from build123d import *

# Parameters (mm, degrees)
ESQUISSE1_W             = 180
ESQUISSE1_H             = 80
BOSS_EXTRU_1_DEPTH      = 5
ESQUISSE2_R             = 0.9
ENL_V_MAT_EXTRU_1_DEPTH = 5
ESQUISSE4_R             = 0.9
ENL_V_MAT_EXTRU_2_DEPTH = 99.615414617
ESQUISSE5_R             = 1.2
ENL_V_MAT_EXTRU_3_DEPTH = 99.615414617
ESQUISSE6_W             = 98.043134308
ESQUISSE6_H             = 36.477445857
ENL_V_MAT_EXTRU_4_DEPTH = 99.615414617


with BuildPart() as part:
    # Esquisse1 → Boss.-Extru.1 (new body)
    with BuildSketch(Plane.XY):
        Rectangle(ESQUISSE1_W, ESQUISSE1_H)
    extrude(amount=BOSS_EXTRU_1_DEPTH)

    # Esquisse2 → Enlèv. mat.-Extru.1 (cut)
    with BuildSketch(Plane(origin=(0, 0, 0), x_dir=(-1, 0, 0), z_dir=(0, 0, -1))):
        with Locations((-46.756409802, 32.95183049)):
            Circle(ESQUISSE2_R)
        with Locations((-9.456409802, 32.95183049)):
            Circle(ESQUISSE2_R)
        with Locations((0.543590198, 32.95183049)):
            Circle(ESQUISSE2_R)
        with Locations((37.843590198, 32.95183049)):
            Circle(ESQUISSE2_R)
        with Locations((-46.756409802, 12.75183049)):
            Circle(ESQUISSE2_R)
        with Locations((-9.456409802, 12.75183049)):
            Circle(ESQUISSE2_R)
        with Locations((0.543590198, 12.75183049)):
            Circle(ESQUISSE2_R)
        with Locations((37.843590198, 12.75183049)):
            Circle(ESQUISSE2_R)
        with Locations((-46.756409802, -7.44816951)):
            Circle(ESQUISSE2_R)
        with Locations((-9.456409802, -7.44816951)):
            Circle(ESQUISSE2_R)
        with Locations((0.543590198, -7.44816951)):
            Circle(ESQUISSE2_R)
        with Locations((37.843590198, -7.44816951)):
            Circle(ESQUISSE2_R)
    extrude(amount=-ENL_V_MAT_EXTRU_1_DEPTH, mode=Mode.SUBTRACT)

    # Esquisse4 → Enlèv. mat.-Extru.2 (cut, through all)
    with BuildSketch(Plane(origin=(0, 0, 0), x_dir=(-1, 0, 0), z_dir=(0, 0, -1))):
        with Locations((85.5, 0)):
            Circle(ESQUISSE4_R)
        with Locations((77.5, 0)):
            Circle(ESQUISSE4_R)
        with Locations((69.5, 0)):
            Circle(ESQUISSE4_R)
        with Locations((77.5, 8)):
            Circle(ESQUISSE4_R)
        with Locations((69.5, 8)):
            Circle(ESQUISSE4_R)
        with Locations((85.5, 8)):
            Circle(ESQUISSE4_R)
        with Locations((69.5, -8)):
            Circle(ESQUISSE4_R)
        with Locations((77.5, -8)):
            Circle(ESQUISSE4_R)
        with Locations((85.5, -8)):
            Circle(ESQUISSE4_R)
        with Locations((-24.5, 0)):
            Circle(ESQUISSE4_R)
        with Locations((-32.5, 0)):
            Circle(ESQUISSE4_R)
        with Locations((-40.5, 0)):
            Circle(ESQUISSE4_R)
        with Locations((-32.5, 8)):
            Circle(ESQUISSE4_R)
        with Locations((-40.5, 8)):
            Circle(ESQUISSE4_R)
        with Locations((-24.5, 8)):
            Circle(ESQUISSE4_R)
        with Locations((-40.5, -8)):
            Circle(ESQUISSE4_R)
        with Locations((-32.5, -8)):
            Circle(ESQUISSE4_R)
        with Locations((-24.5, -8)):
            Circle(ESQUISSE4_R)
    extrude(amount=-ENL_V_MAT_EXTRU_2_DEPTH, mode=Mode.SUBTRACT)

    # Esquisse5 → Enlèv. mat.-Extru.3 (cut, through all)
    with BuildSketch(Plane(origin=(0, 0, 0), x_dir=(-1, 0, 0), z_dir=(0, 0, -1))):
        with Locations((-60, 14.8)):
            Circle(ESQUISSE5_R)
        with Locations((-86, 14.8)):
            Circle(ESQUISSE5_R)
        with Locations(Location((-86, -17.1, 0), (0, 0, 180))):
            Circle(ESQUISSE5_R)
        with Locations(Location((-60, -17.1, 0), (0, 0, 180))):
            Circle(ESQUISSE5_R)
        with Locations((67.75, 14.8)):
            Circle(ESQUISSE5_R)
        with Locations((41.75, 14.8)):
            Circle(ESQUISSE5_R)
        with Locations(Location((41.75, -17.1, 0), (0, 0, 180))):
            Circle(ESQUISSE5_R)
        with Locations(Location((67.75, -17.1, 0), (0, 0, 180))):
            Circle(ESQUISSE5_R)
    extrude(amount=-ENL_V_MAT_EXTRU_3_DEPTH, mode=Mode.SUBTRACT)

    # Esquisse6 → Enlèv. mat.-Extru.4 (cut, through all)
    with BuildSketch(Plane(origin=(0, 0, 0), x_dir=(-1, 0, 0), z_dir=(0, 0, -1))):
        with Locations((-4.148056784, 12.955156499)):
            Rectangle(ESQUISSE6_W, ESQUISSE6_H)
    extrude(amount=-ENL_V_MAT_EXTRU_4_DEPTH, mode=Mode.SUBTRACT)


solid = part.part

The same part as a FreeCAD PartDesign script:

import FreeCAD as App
import Part
import Sketcher

V = App.Vector


def add_polygon(sketch, points):
    """Adds a closed chain of lines whose ends are joined by coincident constraints."""
    first, n = sketch.GeometryCount, len(points)
    for a, b in zip(points, points[1:] + points[:1]):
        sketch.addGeometry(Part.LineSegment(App.Vector(*a, 0), App.Vector(*b, 0)), False)
    for i in range(n):
        sketch.addConstraint(Sketcher.Constraint("Coincident", first + i, 2, first + (i + 1) % n, 1))

doc = App.newDocument("Part")
params = doc.addObject("Spreadsheet::Sheet", "Params")
for row, (alias, value) in enumerate([
    ("sketch1_width", "180 mm"),
    ("sketch1_height", "80 mm"),
    ("pad1_length", "5 mm"),
    ("sketch2_diameter", "1.8 mm"),
    ("pocket1_length", "5 mm"),
    ("sketch3_diameter", "1.8 mm"),
    ("sketch4_diameter", "2.4 mm"),
], start=1):
    params.set(f"A{row}", alias)
    params.set(f"B{row}", "=" + value)
    params.setAlias(f"B{row}", alias)

body = doc.addObject("PartDesign::Body", "Body")

# Sketch on XY plane
sketch1 = body.newObject("Sketcher::SketchObject", "Sketch")
sketch1.AttachmentSupport = (doc.getObject("XY_Plane"), [""])
sketch1.MapMode = "FlatFace"
add_polygon(sketch1, [(-90, 40), (-90, -40), (90, -40), (90, 40)])  # lines 0-3
sketch1.addConstraint(Sketcher.Constraint("Vertical", 0))
sketch1.addConstraint(Sketcher.Constraint("Horizontal", 1))
sketch1.addConstraint(Sketcher.Constraint("Vertical", 2))
sketch1.addConstraint(Sketcher.Constraint("Horizontal", 3))
sketch1.addConstraint(Sketcher.Constraint("Symmetric", 0, 2, 2, 2, -1, 1))
sketch1.addConstraint(Sketcher.Constraint("DistanceX", 1, 1, 1, 2, 180.0))
sketch1.addConstraint(Sketcher.Constraint("DistanceY", 0, 2, 0, 1, 80.0))
sketch1.setExpression("Constraints[9]", "Params.sketch1_width")
sketch1.setExpression("Constraints[10]", "Params.sketch1_height")
pad1 = body.newObject("PartDesign::Pad", "Pad")
pad1.Profile = sketch1
pad1.setExpression("Length", "Params.pad1_length")

# Sketch on XY plane
sketch2 = body.newObject("Sketcher::SketchObject", "Sketch001")
sketch2.AttachmentSupport = (doc.getObject("XY_Plane"), [""])
sketch2.MapMode = "FlatFace"
sketch2.addGeometry(Part.Circle(V(46.75641, 32.95183, 0), V(0, 0, 1), 0.9), False)
sketch2.addGeometry(Part.Circle(V(9.45641, 32.95183, 0), V(0, 0, 1), 0.9), False)
sketch2.addGeometry(Part.Circle(V(-0.54359, 32.95183, 0), V(0, 0, 1), 0.9), False)
sketch2.addGeometry(Part.Circle(V(-37.84359, 32.95183, 0), V(0, 0, 1), 0.9), False)
sketch2.addGeometry(Part.Circle(V(46.75641, 12.75183, 0), V(0, 0, 1), 0.9), False)
sketch2.addGeometry(Part.Circle(V(9.45641, 12.75183, 0), V(0, 0, 1), 0.9), False)
sketch2.addGeometry(Part.Circle(V(-0.54359, 12.75183, 0), V(0, 0, 1), 0.9), False)
sketch2.addGeometry(Part.Circle(V(-37.84359, 12.75183, 0), V(0, 0, 1), 0.9), False)
sketch2.addGeometry(Part.Circle(V(46.75641, -7.44817, 0), V(0, 0, 1), 0.9), False)
sketch2.addGeometry(Part.Circle(V(9.45641, -7.44817, 0), V(0, 0, 1), 0.9), False)
sketch2.addGeometry(Part.Circle(V(-0.54359, -7.44817, 0), V(0, 0, 1), 0.9), False)
sketch2.addGeometry(Part.Circle(V(-37.84359, -7.44817, 0), V(0, 0, 1), 0.9), False)
sketch2.addConstraint(Sketcher.Constraint("Equal", 0, 1))
sketch2.addConstraint(Sketcher.Constraint("Equal", 1, 2))
sketch2.addConstraint(Sketcher.Constraint("Equal", 2, 3))
sketch2.addConstraint(Sketcher.Constraint("Equal", 3, 4))
sketch2.addConstraint(Sketcher.Constraint("Equal", 4, 5))
sketch2.addConstraint(Sketcher.Constraint("Equal", 5, 6))
sketch2.addConstraint(Sketcher.Constraint("Equal", 6, 7))
sketch2.addConstraint(Sketcher.Constraint("Equal", 7, 8))
sketch2.addConstraint(Sketcher.Constraint("Equal", 8, 9))
sketch2.addConstraint(Sketcher.Constraint("Equal", 9, 10))
sketch2.addConstraint(Sketcher.Constraint("Equal", 10, 11))
sketch2.addConstraint(Sketcher.Constraint("Horizontal", 0, 3, 1, 3))
sketch2.addConstraint(Sketcher.Constraint("Horizontal", 1, 3, 2, 3))
sketch2.addConstraint(Sketcher.Constraint("Horizontal", 2, 3, 3, 3))
sketch2.addConstraint(Sketcher.Constraint("Horizontal", 4, 3, 5, 3))
sketch2.addConstraint(Sketcher.Constraint("Horizontal", 5, 3, 6, 3))
sketch2.addConstraint(Sketcher.Constraint("Horizontal", 6, 3, 7, 3))
sketch2.addConstraint(Sketcher.Constraint("Horizontal", 8, 3, 9, 3))
sketch2.addConstraint(Sketcher.Constraint("Horizontal", 9, 3, 10, 3))
sketch2.addConstraint(Sketcher.Constraint("Horizontal", 10, 3, 11, 3))
sketch2.addConstraint(Sketcher.Constraint("Vertical", 0, 3, 4, 3))
sketch2.addConstraint(Sketcher.Constraint("Vertical", 1, 3, 5, 3))
sketch2.addConstraint(Sketcher.Constraint("Vertical", 2, 3, 6, 3))
sketch2.addConstraint(Sketcher.Constraint("Vertical", 3, 3, 7, 3))
sketch2.addConstraint(Sketcher.Constraint("Vertical", 4, 3, 8, 3))
sketch2.addConstraint(Sketcher.Constraint("Vertical", 5, 3, 9, 3))
sketch2.addConstraint(Sketcher.Constraint("Vertical", 6, 3, 10, 3))
sketch2.addConstraint(Sketcher.Constraint("Vertical", 7, 3, 11, 3))
sketch2.addConstraint(Sketcher.Constraint("Diameter", 0, 1.8))
sketch2.addConstraint(Sketcher.Constraint("DistanceX", 2, 3, 1, 3, 10.0))
sketch2.addConstraint(Sketcher.Constraint("DistanceX", 1, 3, 0, 3, 37.3))
sketch2.addConstraint(Sketcher.Constraint("DistanceX", 3, 3, 2, 3, 37.3))
sketch2.addConstraint(Sketcher.Constraint("DistanceY", 4, 3, 0, 3, 20.2))
sketch2.addConstraint(Sketcher.Constraint("DistanceY", 8, 3, 4, 3, 20.2))
sketch2.addConstraint(Sketcher.Constraint("DistanceX", -1, 1, 0, 3, 46.75641))
sketch2.addConstraint(Sketcher.Constraint("DistanceY", -1, 1, 0, 3, 32.95183))
sketch2.setExpression("Constraints[28]", "Params.sketch2_diameter")
pocket1 = body.newObject("PartDesign::Pocket", "Pocket")
pocket1.Profile = sketch2
pocket1.setExpression("Length", "Params.pocket1_length")
pocket1.Reversed = True

# Sketch on XY plane
sketch3 = body.newObject("Sketcher::SketchObject", "Sketch002")
sketch3.AttachmentSupport = (doc.getObject("XY_Plane"), [""])
sketch3.MapMode = "FlatFace"
sketch3.addGeometry(Part.Circle(V(-85.5, 0, 0), V(0, 0, 1), 0.9), False)
sketch3.addGeometry(Part.Circle(V(-77.5, 0, 0), V(0, 0, 1), 0.9), False)
sketch3.addGeometry(Part.Circle(V(-69.5, 0, 0), V(0, 0, 1), 0.9), False)
sketch3.addGeometry(Part.Circle(V(-77.5, 8, 0), V(0, 0, 1), 0.9), False)
sketch3.addGeometry(Part.Circle(V(-69.5, 8, 0), V(0, 0, 1), 0.9), False)
sketch3.addGeometry(Part.Circle(V(-85.5, 8, 0), V(0, 0, 1), 0.9), False)
sketch3.addGeometry(Part.Circle(V(-69.5, -8, 0), V(0, 0, 1), 0.9), False)
sketch3.addGeometry(Part.Circle(V(-77.5, -8, 0), V(0, 0, 1), 0.9), False)
sketch3.addGeometry(Part.Circle(V(-85.5, -8, 0), V(0, 0, 1), 0.9), False)
sketch3.addGeometry(Part.Circle(V(24.5, 0, 0), V(0, 0, 1), 0.9), False)
sketch3.addGeometry(Part.Circle(V(32.5, 0, 0), V(0, 0, 1), 0.9), False)
sketch3.addGeometry(Part.Circle(V(40.5, 0, 0), V(0, 0, 1), 0.9), False)
sketch3.addGeometry(Part.Circle(V(32.5, 8, 0), V(0, 0, 1), 0.9), False)
sketch3.addGeometry(Part.Circle(V(40.5, 8, 0), V(0, 0, 1), 0.9), False)
sketch3.addGeometry(Part.Circle(V(24.5, 8, 0), V(0, 0, 1), 0.9), False)
sketch3.addGeometry(Part.Circle(V(40.5, -8, 0), V(0, 0, 1), 0.9), False)
sketch3.addGeometry(Part.Circle(V(32.5, -8, 0), V(0, 0, 1), 0.9), False)
sketch3.addGeometry(Part.Circle(V(24.5, -8, 0), V(0, 0, 1), 0.9), False)
sketch3.addConstraint(Sketcher.Constraint("Equal", 0, 1))
sketch3.addConstraint(Sketcher.Constraint("Equal", 1, 2))
sketch3.addConstraint(Sketcher.Constraint("Equal", 2, 3))
sketch3.addConstraint(Sketcher.Constraint("Equal", 3, 4))
sketch3.addConstraint(Sketcher.Constraint("Equal", 4, 5))
sketch3.addConstraint(Sketcher.Constraint("Equal", 5, 6))
sketch3.addConstraint(Sketcher.Constraint("Equal", 6, 7))
sketch3.addConstraint(Sketcher.Constraint("Equal", 7, 8))
sketch3.addConstraint(Sketcher.Constraint("Equal", 8, 9))
sketch3.addConstraint(Sketcher.Constraint("Equal", 9, 10))
sketch3.addConstraint(Sketcher.Constraint("Equal", 10, 11))
sketch3.addConstraint(Sketcher.Constraint("Equal", 11, 12))
sketch3.addConstraint(Sketcher.Constraint("Equal", 12, 13))
sketch3.addConstraint(Sketcher.Constraint("Equal", 13, 14))
sketch3.addConstraint(Sketcher.Constraint("Equal", 14, 15))
sketch3.addConstraint(Sketcher.Constraint("Equal", 15, 16))
sketch3.addConstraint(Sketcher.Constraint("Equal", 16, 17))
sketch3.addConstraint(Sketcher.Constraint("Symmetric", 4, 3, 6, 3, -1))
sketch3.addConstraint(Sketcher.Constraint("Symmetric", 3, 3, 7, 3, -1))
sketch3.addConstraint(Sketcher.Constraint("Symmetric", 5, 3, 8, 3, -1))
sketch3.addConstraint(Sketcher.Constraint("Symmetric", 13, 3, 15, 3, -1))
sketch3.addConstraint(Sketcher.Constraint("Symmetric", 12, 3, 16, 3, -1))
sketch3.addConstraint(Sketcher.Constraint("Symmetric", 14, 3, 17, 3, -1))
sketch3.addConstraint(Sketcher.Constraint("PointOnObject", 0, 3, -1))
sketch3.addConstraint(Sketcher.Constraint("PointOnObject", 1, 3, -1))
sketch3.addConstraint(Sketcher.Constraint("PointOnObject", 2, 3, -1))
sketch3.addConstraint(Sketcher.Constraint("PointOnObject", 9, 3, -1))
sketch3.addConstraint(Sketcher.Constraint("PointOnObject", 10, 3, -1))
sketch3.addConstraint(Sketcher.Constraint("PointOnObject", 11, 3, -1))
sketch3.addConstraint(Sketcher.Constraint("Horizontal", 3, 3, 4, 3))
sketch3.addConstraint(Sketcher.Constraint("Horizontal", 4, 3, 5, 3))
sketch3.addConstraint(Sketcher.Constraint("Horizontal", 5, 3, 12, 3))
sketch3.addConstraint(Sketcher.Constraint("Horizontal", 12, 3, 13, 3))
sketch3.addConstraint(Sketcher.Constraint("Horizontal", 13, 3, 14, 3))
sketch3.addConstraint(Sketcher.Constraint("Vertical", 1, 3, 3, 3))
sketch3.addConstraint(Sketcher.Constraint("Vertical", 2, 3, 4, 3))
sketch3.addConstraint(Sketcher.Constraint("Vertical", 0, 3, 5, 3))
sketch3.addConstraint(Sketcher.Constraint("Vertical", 10, 3, 12, 3))
sketch3.addConstraint(Sketcher.Constraint("Vertical", 11, 3, 13, 3))
sketch3.addConstraint(Sketcher.Constraint("Vertical", 9, 3, 14, 3))
sketch3.addConstraint(Sketcher.Constraint("Diameter", 0, 1.8))
sketch3.addConstraint(Sketcher.Constraint("DistanceY", -1, 1, 3, 3, 8.0))
sketch3.addConstraint(Sketcher.Constraint("DistanceX", 0, 3, 1, 3, 8.0))
sketch3.addConstraint(Sketcher.Constraint("DistanceX", 1, 3, 2, 3, 8.0))
sketch3.addConstraint(Sketcher.Constraint("DistanceX", 2, 3, 9, 3, 94.0))
sketch3.addConstraint(Sketcher.Constraint("DistanceX", 9, 3, 10, 3, 8.0))
sketch3.addConstraint(Sketcher.Constraint("DistanceX", 10, 3, 11, 3, 8.0))
sketch3.addConstraint(Sketcher.Constraint("DistanceX", 0, 3, -1, 1, 85.5))
sketch3.setExpression("Constraints[40]", "Params.sketch3_diameter")
pocket2 = body.newObject("PartDesign::Pocket", "Pocket001")
pocket2.Profile = sketch3
pocket2.Type = "ThroughAll"
pocket2.Reversed = True

# Sketch on XY plane
sketch4 = body.newObject("Sketcher::SketchObject", "Sketch003")
sketch4.AttachmentSupport = (doc.getObject("XY_Plane"), [""])
sketch4.MapMode = "FlatFace"
sketch4.addGeometry(Part.Circle(V(60, 14.8, 0), V(0, 0, 1), 1.2), False)
sketch4.addGeometry(Part.Circle(V(86, 14.8, 0), V(0, 0, 1), 1.2), False)
sketch4.addGeometry(Part.Circle(V(86, -17.1, 0), V(0, 0, 1), 1.2), False)
sketch4.addGeometry(Part.Circle(V(60, -17.1, 0), V(0, 0, 1), 1.2), False)
sketch4.addGeometry(Part.Circle(V(-67.75, 14.8, 0), V(0, 0, 1), 1.2), False)
sketch4.addGeometry(Part.Circle(V(-41.75, 14.8, 0), V(0, 0, 1), 1.2), False)
sketch4.addGeometry(Part.Circle(V(-41.75, -17.1, 0), V(0, 0, 1), 1.2), False)
sketch4.addGeometry(Part.Circle(V(-67.75, -17.1, 0), V(0, 0, 1), 1.2), False)
sketch4.addConstraint(Sketcher.Constraint("Equal", 0, 1))
sketch4.addConstraint(Sketcher.Constraint("Equal", 1, 2))
sketch4.addConstraint(Sketcher.Constraint("Equal", 2, 3))
sketch4.addConstraint(Sketcher.Constraint("Equal", 3, 4))
sketch4.addConstraint(Sketcher.Constraint("Equal", 4, 5))
sketch4.addConstraint(Sketcher.Constraint("Equal", 5, 6))
sketch4.addConstraint(Sketcher.Constraint("Equal", 6, 7))
sketch4.addConstraint(Sketcher.Constraint("Horizontal", 0, 3, 1, 3))
sketch4.addConstraint(Sketcher.Constraint("Horizontal", 2, 3, 3, 3))
sketch4.addConstraint(Sketcher.Constraint("Horizontal", 1, 3, 4, 3))
sketch4.addConstraint(Sketcher.Constraint("Horizontal", 4, 3, 5, 3))
sketch4.addConstraint(Sketcher.Constraint("Horizontal", 3, 3, 6, 3))
sketch4.addConstraint(Sketcher.Constraint("Horizontal", 6, 3, 7, 3))
sketch4.addConstraint(Sketcher.Constraint("Vertical", 1, 3, 2, 3))
sketch4.addConstraint(Sketcher.Constraint("Vertical", 0, 3, 3, 3))
sketch4.addConstraint(Sketcher.Constraint("Vertical", 5, 3, 6, 3))
sketch4.addConstraint(Sketcher.Constraint("Vertical", 4, 3, 7, 3))
sketch4.addConstraint(Sketcher.Constraint("Diameter", 0, 2.4))
sketch4.addConstraint(Sketcher.Constraint("DistanceX", -1, 1, 0, 3, 60.0))
sketch4.addConstraint(Sketcher.Constraint("DistanceX", -1, 1, 1, 3, 86.0))
sketch4.addConstraint(Sketcher.Constraint("DistanceX", 4, 3, 5, 3, 26.0))
sketch4.addConstraint(Sketcher.Constraint("DistanceY", -1, 1, 0, 3, 14.8))
sketch4.addConstraint(Sketcher.Constraint("DistanceY", 2, 3, -1, 1, 17.1))
sketch4.addConstraint(Sketcher.Constraint("DistanceX", 4, 3, -1, 1, 67.75))
sketch4.setExpression("Constraints[17]", "Params.sketch4_diameter")
pocket3 = body.newObject("PartDesign::Pocket", "Pocket002")
pocket3.Profile = sketch4
pocket3.Type = "ThroughAll"
pocket3.Reversed = True

# Sketch on XY plane
sketch5 = body.newObject("Sketcher::SketchObject", "Sketch004")
sketch5.AttachmentSupport = (doc.getObject("XY_Plane"), [""])
sketch5.MapMode = "FlatFace"
add_polygon(sketch5, [(53.169624, 31.193879), (53.169624, -5.283566), (-44.87351, -5.283566), (-44.87351, 31.193879)])  # lines 0-3
sketch5.addConstraint(Sketcher.Constraint("Vertical", 0))
sketch5.addConstraint(Sketcher.Constraint("Horizontal", 1))
sketch5.addConstraint(Sketcher.Constraint("Vertical", 2))
sketch5.addConstraint(Sketcher.Constraint("Horizontal", 3))
sketch5.addConstraint(Sketcher.Constraint("DistanceX", 1, 2, 1, 1, 98.043134))
sketch5.addConstraint(Sketcher.Constraint("DistanceY", 0, 2, 0, 1, 36.477446))
sketch5.addConstraint(Sketcher.Constraint("DistanceX", 1, 2, -1, 1, 44.87351))
sketch5.addConstraint(Sketcher.Constraint("DistanceY", -1, 1, 2, 2, 31.193879))
pocket4 = body.newObject("PartDesign::Pocket", "Pocket003")
pocket4.Profile = sketch5
pocket4.Type = "ThroughAll"
pocket4.Reversed = True

doc.recompute()
